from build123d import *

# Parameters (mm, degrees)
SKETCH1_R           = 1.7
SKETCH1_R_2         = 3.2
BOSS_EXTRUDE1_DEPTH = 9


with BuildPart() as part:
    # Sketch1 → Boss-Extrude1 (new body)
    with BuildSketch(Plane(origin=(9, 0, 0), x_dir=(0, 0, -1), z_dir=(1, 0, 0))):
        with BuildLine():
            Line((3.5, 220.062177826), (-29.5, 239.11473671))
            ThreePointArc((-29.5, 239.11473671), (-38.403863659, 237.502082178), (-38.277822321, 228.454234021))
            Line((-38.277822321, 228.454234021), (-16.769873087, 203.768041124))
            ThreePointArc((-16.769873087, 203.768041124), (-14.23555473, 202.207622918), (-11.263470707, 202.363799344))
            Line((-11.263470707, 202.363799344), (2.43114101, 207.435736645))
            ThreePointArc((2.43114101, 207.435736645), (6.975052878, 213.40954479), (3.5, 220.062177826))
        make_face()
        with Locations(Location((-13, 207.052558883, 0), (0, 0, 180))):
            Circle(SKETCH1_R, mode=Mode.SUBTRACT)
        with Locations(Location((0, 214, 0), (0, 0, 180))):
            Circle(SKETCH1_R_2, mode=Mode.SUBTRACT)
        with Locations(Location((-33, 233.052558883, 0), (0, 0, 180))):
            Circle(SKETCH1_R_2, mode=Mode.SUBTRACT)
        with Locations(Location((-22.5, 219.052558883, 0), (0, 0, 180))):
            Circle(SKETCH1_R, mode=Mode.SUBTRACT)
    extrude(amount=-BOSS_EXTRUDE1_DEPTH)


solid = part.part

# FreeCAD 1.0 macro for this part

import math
import FreeCAD as App
import Part
import Sketcher

V = App.Vector
Q = App.Units.Quantity

doc = App.newDocument("Part")
params = doc.addObject("Spreadsheet::Sheet", "Params")
for row, (alias, value) in enumerate([
    ("sketch1_radius", "7 mm"),
    ("sketch1_radius2", "5 mm"),
    ("sketch1_diameter", "3.4 mm"),
    ("sketch1_diameter2", "6.4 mm"),
    ("pad1_length", "9 mm"),
], start=1):
    params.set(f"A{row}", alias)
    params.set(f"B{row}", "=" + value)
    params.setAlias(f"B{row}", alias)

body = doc.addObject("PartDesign::Body", "Body")

sketch1 = body.newObject("Sketcher::SketchObject", "Sketch")
sketch1.AttachmentSupport = (doc.getObject("YZ_Plane"), [""])
sketch1.MapMode = "FlatFace"
sketch1.AttachmentOffset = App.Placement(V(0, 0, 9), App.Rotation())
sketch1.addGeometry(Part.LineSegment(V(220.062178, -3.5, 0), V(239.114737, 29.5, 0)), False)
sketch1.addGeometry(Part.ArcOfCircle(Part.Circle(V(233.052559, 33, 0), V(0, 0, 1), 7), math.radians(-30), math.radians(131.064145)), False)
sketch1.addGeometry(Part.LineSegment(V(228.454234, 38.277822, 0), V(203.768041, 16.769873, 0)), False)
sketch1.addGeometry(Part.ArcOfCircle(Part.Circle(V(207.052559, 13, 0), V(0, 0, 1), 5), math.radians(131.064145), math.radians(200.322618)), False)
sketch1.addGeometry(Part.LineSegment(V(202.363799, 11.263471, 0), V(207.435737, -2.431141, 0)), False)
sketch1.addGeometry(Part.ArcOfCircle(Part.Circle(V(214, 0, 0), V(0, 0, 1), 7), math.radians(-159.677382), math.radians(-30)), False)
sketch1.addGeometry(Part.Circle(V(219.052559, 22.5, 0), V(0, 0, 1), 1.7), False)
sketch1.addGeometry(Part.Circle(V(207.052559, 13, 0), V(0, 0, 1), 1.7), False)
sketch1.addGeometry(Part.Circle(V(214, 0, 0), V(0, 0, 1), 3.2), False)
sketch1.addGeometry(Part.Circle(V(233.052559, 33, 0), V(0, 0, 1), 3.2), False)
sketch1.addConstraint(Sketcher.Constraint("Tangent", 0, 2, 1, 1))
sketch1.addConstraint(Sketcher.Constraint("Tangent", 1, 2, 2, 1))
sketch1.addConstraint(Sketcher.Constraint("Tangent", 2, 2, 3, 1))
sketch1.addConstraint(Sketcher.Constraint("Tangent", 3, 2, 4, 1))
sketch1.addConstraint(Sketcher.Constraint("Tangent", 4, 2, 5, 1))
sketch1.addConstraint(Sketcher.Constraint("Tangent", 5, 2, 0, 1))
sketch1.addConstraint(Sketcher.Constraint("Coincident", 7, 3, 3, 3))
sketch1.addConstraint(Sketcher.Constraint("Coincident", 8, 3, 5, 3))
sketch1.addConstraint(Sketcher.Constraint("Coincident", 9, 3, 1, 3))
sketch1.addConstraint(Sketcher.Constraint("Equal", 1, 5))
sketch1.addConstraint(Sketcher.Constraint("Equal", 6, 7))
sketch1.addConstraint(Sketcher.Constraint("Equal", 8, 9))
sketch1.addConstraint(Sketcher.Constraint("PointOnObject", 5, 3, -1))
sketch1.addConstraint(Sketcher.Constraint("Radius", 1, Q("7 mm")))
sketch1.addConstraint(Sketcher.Constraint("Radius", 3, Q("5 mm")))
sketch1.addConstraint(Sketcher.Constraint("Diameter", 6, Q("3.4 mm")))
sketch1.addConstraint(Sketcher.Constraint("Diameter", 8, Q("6.4 mm")))
sketch1.addConstraint(Sketcher.Constraint("Angle", 0, Q("60 deg")))
sketch1.addConstraint(Sketcher.Constraint("DistanceY", -1, 1, 1, 3, Q("33 mm")))
sketch1.addConstraint(Sketcher.Constraint("DistanceY", -1, 1, 3, 3, Q("13 mm")))
sketch1.addConstraint(Sketcher.Constraint("DistanceX", -1, 1, 5, 3, Q("214 mm")))
sketch1.addConstraint(Sketcher.Constraint("DistanceX", 3, 3, 1, 3, Q("26 mm")))
sketch1.addConstraint(Sketcher.Constraint("DistanceX", 3, 3, 6, 3, Q("12 mm")))
sketch1.addConstraint(Sketcher.Constraint("DistanceY", 6, 3, 0, 2, Q("7 mm")))
sketch1.setExpression("Constraints[13]", "Params.sketch1_radius")
sketch1.setExpression("Constraints[14]", "Params.sketch1_radius2")
sketch1.setExpression("Constraints[15]", "Params.sketch1_diameter")
sketch1.setExpression("Constraints[16]", "Params.sketch1_diameter2")
pad1 = body.newObject("PartDesign::Pad", "Pad")
pad1.Profile = sketch1
pad1.setExpression("Length", "Params.pad1_length")
pad1.Reversed = True

doc.recompute()
